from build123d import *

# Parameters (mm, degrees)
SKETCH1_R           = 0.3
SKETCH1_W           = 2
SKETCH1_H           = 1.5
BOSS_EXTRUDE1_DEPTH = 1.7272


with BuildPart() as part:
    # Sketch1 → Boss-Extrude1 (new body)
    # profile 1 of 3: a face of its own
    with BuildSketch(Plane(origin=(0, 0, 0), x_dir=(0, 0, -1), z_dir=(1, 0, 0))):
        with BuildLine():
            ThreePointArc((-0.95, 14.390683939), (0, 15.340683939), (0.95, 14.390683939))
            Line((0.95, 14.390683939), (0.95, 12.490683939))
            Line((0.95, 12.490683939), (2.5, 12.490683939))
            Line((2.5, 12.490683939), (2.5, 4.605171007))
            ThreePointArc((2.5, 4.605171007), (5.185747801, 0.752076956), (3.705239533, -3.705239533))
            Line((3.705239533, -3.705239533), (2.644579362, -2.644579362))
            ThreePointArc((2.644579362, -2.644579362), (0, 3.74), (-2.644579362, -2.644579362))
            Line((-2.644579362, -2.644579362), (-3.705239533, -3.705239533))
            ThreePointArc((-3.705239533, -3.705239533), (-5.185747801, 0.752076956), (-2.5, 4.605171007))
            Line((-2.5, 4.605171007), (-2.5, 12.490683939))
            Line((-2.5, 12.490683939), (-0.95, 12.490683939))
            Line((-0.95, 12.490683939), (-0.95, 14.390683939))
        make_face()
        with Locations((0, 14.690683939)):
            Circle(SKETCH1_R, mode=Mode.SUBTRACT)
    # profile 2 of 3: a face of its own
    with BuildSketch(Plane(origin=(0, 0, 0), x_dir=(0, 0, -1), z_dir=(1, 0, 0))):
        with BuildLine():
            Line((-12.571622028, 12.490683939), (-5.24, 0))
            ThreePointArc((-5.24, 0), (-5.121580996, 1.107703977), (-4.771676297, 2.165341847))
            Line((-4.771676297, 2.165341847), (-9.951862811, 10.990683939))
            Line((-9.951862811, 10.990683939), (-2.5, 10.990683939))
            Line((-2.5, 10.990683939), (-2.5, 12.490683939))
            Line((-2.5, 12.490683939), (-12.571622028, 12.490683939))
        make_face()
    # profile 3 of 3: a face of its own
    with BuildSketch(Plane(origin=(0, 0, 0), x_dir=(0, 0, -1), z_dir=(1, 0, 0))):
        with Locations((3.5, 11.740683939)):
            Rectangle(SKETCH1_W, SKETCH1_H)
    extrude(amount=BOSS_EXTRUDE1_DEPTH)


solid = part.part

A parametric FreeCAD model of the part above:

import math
import FreeCAD as App
import Part
import Sketcher

V = App.Vector
Q = App.Units.Quantity

doc = App.newDocument("Part")
body = doc.addObject("PartDesign::Body", "Body")

# Sketch on YZ plane
sketch1 = body.newObject("Sketcher::SketchObject", "Sketch")
sketch1.AttachmentSupport = (doc.getObject("YZ_Plane"), [""])
sketch1.MapMode = "FlatFace"
sketch1.addGeometry(Part.ArcOfCircle(Part.Circle(V(14.39, 0, 0), V(0, 0, 1), 0.95), math.radians(-90), math.radians(90)), False)
sketch1.addGeometry(Part.LineSegment(V(14.39, 0.95, 0), V(12.49, 0.95, 0)), False)
sketch1.addGeometry(Part.LineSegment(V(12.49, 0.95, 0), V(12.49, 12.57, 0)), False)
sketch1.addGeometry(Part.LineSegment(V(12.49, 12.57, 0), V(0, 5.24, 0)), False)
sketch1.addGeometry(Part.ArcOfCircle(Part.Circle(V(0, 0, 0), V(0, 0, 1), 5.24), math.radians(90), math.radians(135)), False)
sketch1.addGeometry(Part.LineSegment(V(-3.71, 3.71, 0), V(-2.64, 2.64, 0)), False)
sketch1.addGeometry(Part.ArcOfCircle(Part.Circle(V(0, 0, 0), V(0, 0, 1), 3.74), math.radians(-135), math.radians(135)), False)
sketch1.addGeometry(Part.LineSegment(V(-2.64, -2.64, 0), V(-3.71, -3.71, 0)), False)
sketch1.addGeometry(Part.ArcOfCircle(Part.Circle(V(0, 0, 0), V(0, 0, 1), 5.24), math.radians(-135), math.radians(-28)), False)
sketch1.addGeometry(Part.LineSegment(V(4.61, -2.5, 0), V(10.99, -2.5, 0)), False)
sketch1.addGeometry(Part.LineSegment(V(10.99, -2.5, 0), V(10.99, -4.5, 0)), False)
sketch1.addGeometry(Part.LineSegment(V(10.99, -4.5, 0), V(12.49, -4.5, 0)), False)
sketch1.addGeometry(Part.LineSegment(V(12.49, -4.5, 0), V(12.49, -0.95, 0)), False)
sketch1.addGeometry(Part.LineSegment(V(12.49, -0.95, 0), V(14.39, -0.95, 0)), False)
sketch1.addGeometry(Part.LineSegment(V(10.99, 2.5, 0), V(4.61, 2.5, 0)), False)
sketch1.addGeometry(Part.ArcOfCircle(Part.Circle(V(0, 0, 0), V(0, 0, 1), 5.24), math.radians(28), math.radians(66)), False)
sketch1.addGeometry(Part.LineSegment(V(2.17, 4.77, 0), V(10.99, 9.95, 0)), False)
sketch1.addGeometry(Part.LineSegment(V(10.99, 9.95, 0), V(10.99, 2.5, 0)), False)
sketch1.addGeometry(Part.Circle(V(14.69, 0, 0), V(0, 0, 1), 0.3), False)
sketch1.addConstraint(Sketcher.Constraint("Tangent", 0, 2, 1, 1))
sketch1.addConstraint(Sketcher.Constraint("Coincident", 1, 2, 2, 1))
sketch1.addConstraint(Sketcher.Constraint("Coincident", 2, 2, 3, 1))
sketch1.addConstraint(Sketcher.Constraint("Coincident", 3, 2, 4, 1))
sketch1.addConstraint(Sketcher.Constraint("Coincident", 4, 2, 5, 1))
sketch1.addConstraint(Sketcher.Constraint("Coincident", 5, 2, 6, 2))
sketch1.addConstraint(Sketcher.Constraint("Coincident", 6, 1, 7, 1))
sketch1.addConstraint(Sketcher.Constraint("Coincident", 7, 2, 8, 1))
sketch1.addConstraint(Sketcher.Constraint("Coincident", 8, 2, 9, 1))
sketch1.addConstraint(Sketcher.Constraint("Coincident", 9, 2, 10, 1))
sketch1.addConstraint(Sketcher.Constraint("Coincident", 10, 2, 11, 1))
sketch1.addConstraint(Sketcher.Constraint("Coincident", 11, 2, 12, 1))
sketch1.addConstraint(Sketcher.Constraint("Coincident", 12, 2, 13, 1))
sketch1.addConstraint(Sketcher.Constraint("Tangent", 13, 2, 0, 1))
sketch1.addConstraint(Sketcher.Constraint("Coincident", 14, 2, 15, 1))
sketch1.addConstraint(Sketcher.Constraint("Coincident", 15, 2, 16, 1))
sketch1.addConstraint(Sketcher.Constraint("Coincident", 16, 2, 17, 1))
sketch1.addConstraint(Sketcher.Constraint("Coincident", 17, 2, 14, 1))
sketch1.addConstraint(Sketcher.Constraint("Horizontal", 1))
sketch1.addConstraint(Sketcher.Constraint("Vertical", 2))
sketch1.addConstraint(Sketcher.Constraint("Horizontal", 9))
sketch1.addConstraint(Sketcher.Constraint("Vertical", 10))
sketch1.addConstraint(Sketcher.Constraint("Horizontal", 11))
sketch1.addConstraint(Sketcher.Constraint("Vertical", 12))
sketch1.addConstraint(Sketcher.Constraint("Horizontal", 13))
sketch1.addConstraint(Sketcher.Constraint("Horizontal", 14))
sketch1.addConstraint(Sketcher.Constraint("Vertical", 17))
sketch1.addConstraint(Sketcher.Constraint("Coincident", 4, 3, -1, 1))
sketch1.addConstraint(Sketcher.Constraint("Coincident", 6, 3, -1, 1))
sketch1.addConstraint(Sketcher.Constraint("Coincident", 8, 3, -1, 1))
sketch1.addConstraint(Sketcher.Constraint("Coincident", 15, 3, -1, 1))
sketch1.addConstraint(Sketcher.Constraint("Equal", 4, 8))
sketch1.addConstraint(Sketcher.Constraint("Equal", 8, 15))
sketch1.addConstraint(Sketcher.Constraint("Symmetric", 1, 2, 12, 2, -1))
sketch1.addConstraint(Sketcher.Constraint("Symmetric", 9, 2, 17, 2, -1))
sketch1.addConstraint(Sketcher.Constraint("PointOnObject", 18, 3, -1))
sketch1.addConstraint(Sketcher.Constraint("PointOnObject", 3, 2, -2))
sketch1.addConstraint(Sketcher.Constraint("Perpendicular", 5, 7))
sketch1.addConstraint(Sketcher.Constraint("Parallel", 3, 16))
sketch1.addConstraint(Sketcher.Constraint("Vertical", 5, 2, 6, 1))
sketch1.addConstraint(Sketcher.Constraint("Vertical", 4, 2, 7, 2))
sketch1.addConstraint(Sketcher.Constraint("Diameter", 18, Q("0.6 mm")))
sketch1.addConstraint(Sketcher.Constraint("DistanceY", 10, 2, 10, 1, Q("2 mm")))
sketch1.addConstraint(Sketcher.Constraint("Radius", 0, Q("0.95 mm")))
sketch1.addConstraint(Sketcher.Constraint("Radius", 4, Q("5.24 mm")))
sketch1.addConstraint(Sketcher.Constraint("Radius", 6, Q("3.74 mm")))
sketch1.addConstraint(Sketcher.Constraint("DistanceX", 1, 2, 1, 1, Q("1.9 mm")))
sketch1.addConstraint(Sketcher.Constraint("DistanceX", 11, 1, 11, 2, Q("1.5 mm")))
sketch1.addConstraint(Sketcher.Constraint("DistanceY", 8, 2, 14, 2, Q("5 mm")))
sketch1.addConstraint(Sketcher.Constraint("DistanceX", 0, 3, 18, 3, Q("0.3 mm")))
sketch1.addConstraint(Sketcher.Constraint("DistanceX", 9, 1, 9, 2, Q("6.385513 mm")))
sketch1.addConstraint(Sketcher.Constraint("DistanceY", 2, 1, 2, 2, Q("11.621622 mm")))
sketch1.addConstraint(Sketcher.Constraint("DistanceY", 17, 2, 17, 1, Q("7.451863 mm")))
sketch1.addConstraint(Sketcher.Constraint("DistanceX", 4, 2, -1, 1, Q("3.70524 mm")))
pad1 = body.newObject("PartDesign::Pad", "Pad")
pad1.Profile = sketch1
pad1.Length = 1.7272

doc.recompute()
